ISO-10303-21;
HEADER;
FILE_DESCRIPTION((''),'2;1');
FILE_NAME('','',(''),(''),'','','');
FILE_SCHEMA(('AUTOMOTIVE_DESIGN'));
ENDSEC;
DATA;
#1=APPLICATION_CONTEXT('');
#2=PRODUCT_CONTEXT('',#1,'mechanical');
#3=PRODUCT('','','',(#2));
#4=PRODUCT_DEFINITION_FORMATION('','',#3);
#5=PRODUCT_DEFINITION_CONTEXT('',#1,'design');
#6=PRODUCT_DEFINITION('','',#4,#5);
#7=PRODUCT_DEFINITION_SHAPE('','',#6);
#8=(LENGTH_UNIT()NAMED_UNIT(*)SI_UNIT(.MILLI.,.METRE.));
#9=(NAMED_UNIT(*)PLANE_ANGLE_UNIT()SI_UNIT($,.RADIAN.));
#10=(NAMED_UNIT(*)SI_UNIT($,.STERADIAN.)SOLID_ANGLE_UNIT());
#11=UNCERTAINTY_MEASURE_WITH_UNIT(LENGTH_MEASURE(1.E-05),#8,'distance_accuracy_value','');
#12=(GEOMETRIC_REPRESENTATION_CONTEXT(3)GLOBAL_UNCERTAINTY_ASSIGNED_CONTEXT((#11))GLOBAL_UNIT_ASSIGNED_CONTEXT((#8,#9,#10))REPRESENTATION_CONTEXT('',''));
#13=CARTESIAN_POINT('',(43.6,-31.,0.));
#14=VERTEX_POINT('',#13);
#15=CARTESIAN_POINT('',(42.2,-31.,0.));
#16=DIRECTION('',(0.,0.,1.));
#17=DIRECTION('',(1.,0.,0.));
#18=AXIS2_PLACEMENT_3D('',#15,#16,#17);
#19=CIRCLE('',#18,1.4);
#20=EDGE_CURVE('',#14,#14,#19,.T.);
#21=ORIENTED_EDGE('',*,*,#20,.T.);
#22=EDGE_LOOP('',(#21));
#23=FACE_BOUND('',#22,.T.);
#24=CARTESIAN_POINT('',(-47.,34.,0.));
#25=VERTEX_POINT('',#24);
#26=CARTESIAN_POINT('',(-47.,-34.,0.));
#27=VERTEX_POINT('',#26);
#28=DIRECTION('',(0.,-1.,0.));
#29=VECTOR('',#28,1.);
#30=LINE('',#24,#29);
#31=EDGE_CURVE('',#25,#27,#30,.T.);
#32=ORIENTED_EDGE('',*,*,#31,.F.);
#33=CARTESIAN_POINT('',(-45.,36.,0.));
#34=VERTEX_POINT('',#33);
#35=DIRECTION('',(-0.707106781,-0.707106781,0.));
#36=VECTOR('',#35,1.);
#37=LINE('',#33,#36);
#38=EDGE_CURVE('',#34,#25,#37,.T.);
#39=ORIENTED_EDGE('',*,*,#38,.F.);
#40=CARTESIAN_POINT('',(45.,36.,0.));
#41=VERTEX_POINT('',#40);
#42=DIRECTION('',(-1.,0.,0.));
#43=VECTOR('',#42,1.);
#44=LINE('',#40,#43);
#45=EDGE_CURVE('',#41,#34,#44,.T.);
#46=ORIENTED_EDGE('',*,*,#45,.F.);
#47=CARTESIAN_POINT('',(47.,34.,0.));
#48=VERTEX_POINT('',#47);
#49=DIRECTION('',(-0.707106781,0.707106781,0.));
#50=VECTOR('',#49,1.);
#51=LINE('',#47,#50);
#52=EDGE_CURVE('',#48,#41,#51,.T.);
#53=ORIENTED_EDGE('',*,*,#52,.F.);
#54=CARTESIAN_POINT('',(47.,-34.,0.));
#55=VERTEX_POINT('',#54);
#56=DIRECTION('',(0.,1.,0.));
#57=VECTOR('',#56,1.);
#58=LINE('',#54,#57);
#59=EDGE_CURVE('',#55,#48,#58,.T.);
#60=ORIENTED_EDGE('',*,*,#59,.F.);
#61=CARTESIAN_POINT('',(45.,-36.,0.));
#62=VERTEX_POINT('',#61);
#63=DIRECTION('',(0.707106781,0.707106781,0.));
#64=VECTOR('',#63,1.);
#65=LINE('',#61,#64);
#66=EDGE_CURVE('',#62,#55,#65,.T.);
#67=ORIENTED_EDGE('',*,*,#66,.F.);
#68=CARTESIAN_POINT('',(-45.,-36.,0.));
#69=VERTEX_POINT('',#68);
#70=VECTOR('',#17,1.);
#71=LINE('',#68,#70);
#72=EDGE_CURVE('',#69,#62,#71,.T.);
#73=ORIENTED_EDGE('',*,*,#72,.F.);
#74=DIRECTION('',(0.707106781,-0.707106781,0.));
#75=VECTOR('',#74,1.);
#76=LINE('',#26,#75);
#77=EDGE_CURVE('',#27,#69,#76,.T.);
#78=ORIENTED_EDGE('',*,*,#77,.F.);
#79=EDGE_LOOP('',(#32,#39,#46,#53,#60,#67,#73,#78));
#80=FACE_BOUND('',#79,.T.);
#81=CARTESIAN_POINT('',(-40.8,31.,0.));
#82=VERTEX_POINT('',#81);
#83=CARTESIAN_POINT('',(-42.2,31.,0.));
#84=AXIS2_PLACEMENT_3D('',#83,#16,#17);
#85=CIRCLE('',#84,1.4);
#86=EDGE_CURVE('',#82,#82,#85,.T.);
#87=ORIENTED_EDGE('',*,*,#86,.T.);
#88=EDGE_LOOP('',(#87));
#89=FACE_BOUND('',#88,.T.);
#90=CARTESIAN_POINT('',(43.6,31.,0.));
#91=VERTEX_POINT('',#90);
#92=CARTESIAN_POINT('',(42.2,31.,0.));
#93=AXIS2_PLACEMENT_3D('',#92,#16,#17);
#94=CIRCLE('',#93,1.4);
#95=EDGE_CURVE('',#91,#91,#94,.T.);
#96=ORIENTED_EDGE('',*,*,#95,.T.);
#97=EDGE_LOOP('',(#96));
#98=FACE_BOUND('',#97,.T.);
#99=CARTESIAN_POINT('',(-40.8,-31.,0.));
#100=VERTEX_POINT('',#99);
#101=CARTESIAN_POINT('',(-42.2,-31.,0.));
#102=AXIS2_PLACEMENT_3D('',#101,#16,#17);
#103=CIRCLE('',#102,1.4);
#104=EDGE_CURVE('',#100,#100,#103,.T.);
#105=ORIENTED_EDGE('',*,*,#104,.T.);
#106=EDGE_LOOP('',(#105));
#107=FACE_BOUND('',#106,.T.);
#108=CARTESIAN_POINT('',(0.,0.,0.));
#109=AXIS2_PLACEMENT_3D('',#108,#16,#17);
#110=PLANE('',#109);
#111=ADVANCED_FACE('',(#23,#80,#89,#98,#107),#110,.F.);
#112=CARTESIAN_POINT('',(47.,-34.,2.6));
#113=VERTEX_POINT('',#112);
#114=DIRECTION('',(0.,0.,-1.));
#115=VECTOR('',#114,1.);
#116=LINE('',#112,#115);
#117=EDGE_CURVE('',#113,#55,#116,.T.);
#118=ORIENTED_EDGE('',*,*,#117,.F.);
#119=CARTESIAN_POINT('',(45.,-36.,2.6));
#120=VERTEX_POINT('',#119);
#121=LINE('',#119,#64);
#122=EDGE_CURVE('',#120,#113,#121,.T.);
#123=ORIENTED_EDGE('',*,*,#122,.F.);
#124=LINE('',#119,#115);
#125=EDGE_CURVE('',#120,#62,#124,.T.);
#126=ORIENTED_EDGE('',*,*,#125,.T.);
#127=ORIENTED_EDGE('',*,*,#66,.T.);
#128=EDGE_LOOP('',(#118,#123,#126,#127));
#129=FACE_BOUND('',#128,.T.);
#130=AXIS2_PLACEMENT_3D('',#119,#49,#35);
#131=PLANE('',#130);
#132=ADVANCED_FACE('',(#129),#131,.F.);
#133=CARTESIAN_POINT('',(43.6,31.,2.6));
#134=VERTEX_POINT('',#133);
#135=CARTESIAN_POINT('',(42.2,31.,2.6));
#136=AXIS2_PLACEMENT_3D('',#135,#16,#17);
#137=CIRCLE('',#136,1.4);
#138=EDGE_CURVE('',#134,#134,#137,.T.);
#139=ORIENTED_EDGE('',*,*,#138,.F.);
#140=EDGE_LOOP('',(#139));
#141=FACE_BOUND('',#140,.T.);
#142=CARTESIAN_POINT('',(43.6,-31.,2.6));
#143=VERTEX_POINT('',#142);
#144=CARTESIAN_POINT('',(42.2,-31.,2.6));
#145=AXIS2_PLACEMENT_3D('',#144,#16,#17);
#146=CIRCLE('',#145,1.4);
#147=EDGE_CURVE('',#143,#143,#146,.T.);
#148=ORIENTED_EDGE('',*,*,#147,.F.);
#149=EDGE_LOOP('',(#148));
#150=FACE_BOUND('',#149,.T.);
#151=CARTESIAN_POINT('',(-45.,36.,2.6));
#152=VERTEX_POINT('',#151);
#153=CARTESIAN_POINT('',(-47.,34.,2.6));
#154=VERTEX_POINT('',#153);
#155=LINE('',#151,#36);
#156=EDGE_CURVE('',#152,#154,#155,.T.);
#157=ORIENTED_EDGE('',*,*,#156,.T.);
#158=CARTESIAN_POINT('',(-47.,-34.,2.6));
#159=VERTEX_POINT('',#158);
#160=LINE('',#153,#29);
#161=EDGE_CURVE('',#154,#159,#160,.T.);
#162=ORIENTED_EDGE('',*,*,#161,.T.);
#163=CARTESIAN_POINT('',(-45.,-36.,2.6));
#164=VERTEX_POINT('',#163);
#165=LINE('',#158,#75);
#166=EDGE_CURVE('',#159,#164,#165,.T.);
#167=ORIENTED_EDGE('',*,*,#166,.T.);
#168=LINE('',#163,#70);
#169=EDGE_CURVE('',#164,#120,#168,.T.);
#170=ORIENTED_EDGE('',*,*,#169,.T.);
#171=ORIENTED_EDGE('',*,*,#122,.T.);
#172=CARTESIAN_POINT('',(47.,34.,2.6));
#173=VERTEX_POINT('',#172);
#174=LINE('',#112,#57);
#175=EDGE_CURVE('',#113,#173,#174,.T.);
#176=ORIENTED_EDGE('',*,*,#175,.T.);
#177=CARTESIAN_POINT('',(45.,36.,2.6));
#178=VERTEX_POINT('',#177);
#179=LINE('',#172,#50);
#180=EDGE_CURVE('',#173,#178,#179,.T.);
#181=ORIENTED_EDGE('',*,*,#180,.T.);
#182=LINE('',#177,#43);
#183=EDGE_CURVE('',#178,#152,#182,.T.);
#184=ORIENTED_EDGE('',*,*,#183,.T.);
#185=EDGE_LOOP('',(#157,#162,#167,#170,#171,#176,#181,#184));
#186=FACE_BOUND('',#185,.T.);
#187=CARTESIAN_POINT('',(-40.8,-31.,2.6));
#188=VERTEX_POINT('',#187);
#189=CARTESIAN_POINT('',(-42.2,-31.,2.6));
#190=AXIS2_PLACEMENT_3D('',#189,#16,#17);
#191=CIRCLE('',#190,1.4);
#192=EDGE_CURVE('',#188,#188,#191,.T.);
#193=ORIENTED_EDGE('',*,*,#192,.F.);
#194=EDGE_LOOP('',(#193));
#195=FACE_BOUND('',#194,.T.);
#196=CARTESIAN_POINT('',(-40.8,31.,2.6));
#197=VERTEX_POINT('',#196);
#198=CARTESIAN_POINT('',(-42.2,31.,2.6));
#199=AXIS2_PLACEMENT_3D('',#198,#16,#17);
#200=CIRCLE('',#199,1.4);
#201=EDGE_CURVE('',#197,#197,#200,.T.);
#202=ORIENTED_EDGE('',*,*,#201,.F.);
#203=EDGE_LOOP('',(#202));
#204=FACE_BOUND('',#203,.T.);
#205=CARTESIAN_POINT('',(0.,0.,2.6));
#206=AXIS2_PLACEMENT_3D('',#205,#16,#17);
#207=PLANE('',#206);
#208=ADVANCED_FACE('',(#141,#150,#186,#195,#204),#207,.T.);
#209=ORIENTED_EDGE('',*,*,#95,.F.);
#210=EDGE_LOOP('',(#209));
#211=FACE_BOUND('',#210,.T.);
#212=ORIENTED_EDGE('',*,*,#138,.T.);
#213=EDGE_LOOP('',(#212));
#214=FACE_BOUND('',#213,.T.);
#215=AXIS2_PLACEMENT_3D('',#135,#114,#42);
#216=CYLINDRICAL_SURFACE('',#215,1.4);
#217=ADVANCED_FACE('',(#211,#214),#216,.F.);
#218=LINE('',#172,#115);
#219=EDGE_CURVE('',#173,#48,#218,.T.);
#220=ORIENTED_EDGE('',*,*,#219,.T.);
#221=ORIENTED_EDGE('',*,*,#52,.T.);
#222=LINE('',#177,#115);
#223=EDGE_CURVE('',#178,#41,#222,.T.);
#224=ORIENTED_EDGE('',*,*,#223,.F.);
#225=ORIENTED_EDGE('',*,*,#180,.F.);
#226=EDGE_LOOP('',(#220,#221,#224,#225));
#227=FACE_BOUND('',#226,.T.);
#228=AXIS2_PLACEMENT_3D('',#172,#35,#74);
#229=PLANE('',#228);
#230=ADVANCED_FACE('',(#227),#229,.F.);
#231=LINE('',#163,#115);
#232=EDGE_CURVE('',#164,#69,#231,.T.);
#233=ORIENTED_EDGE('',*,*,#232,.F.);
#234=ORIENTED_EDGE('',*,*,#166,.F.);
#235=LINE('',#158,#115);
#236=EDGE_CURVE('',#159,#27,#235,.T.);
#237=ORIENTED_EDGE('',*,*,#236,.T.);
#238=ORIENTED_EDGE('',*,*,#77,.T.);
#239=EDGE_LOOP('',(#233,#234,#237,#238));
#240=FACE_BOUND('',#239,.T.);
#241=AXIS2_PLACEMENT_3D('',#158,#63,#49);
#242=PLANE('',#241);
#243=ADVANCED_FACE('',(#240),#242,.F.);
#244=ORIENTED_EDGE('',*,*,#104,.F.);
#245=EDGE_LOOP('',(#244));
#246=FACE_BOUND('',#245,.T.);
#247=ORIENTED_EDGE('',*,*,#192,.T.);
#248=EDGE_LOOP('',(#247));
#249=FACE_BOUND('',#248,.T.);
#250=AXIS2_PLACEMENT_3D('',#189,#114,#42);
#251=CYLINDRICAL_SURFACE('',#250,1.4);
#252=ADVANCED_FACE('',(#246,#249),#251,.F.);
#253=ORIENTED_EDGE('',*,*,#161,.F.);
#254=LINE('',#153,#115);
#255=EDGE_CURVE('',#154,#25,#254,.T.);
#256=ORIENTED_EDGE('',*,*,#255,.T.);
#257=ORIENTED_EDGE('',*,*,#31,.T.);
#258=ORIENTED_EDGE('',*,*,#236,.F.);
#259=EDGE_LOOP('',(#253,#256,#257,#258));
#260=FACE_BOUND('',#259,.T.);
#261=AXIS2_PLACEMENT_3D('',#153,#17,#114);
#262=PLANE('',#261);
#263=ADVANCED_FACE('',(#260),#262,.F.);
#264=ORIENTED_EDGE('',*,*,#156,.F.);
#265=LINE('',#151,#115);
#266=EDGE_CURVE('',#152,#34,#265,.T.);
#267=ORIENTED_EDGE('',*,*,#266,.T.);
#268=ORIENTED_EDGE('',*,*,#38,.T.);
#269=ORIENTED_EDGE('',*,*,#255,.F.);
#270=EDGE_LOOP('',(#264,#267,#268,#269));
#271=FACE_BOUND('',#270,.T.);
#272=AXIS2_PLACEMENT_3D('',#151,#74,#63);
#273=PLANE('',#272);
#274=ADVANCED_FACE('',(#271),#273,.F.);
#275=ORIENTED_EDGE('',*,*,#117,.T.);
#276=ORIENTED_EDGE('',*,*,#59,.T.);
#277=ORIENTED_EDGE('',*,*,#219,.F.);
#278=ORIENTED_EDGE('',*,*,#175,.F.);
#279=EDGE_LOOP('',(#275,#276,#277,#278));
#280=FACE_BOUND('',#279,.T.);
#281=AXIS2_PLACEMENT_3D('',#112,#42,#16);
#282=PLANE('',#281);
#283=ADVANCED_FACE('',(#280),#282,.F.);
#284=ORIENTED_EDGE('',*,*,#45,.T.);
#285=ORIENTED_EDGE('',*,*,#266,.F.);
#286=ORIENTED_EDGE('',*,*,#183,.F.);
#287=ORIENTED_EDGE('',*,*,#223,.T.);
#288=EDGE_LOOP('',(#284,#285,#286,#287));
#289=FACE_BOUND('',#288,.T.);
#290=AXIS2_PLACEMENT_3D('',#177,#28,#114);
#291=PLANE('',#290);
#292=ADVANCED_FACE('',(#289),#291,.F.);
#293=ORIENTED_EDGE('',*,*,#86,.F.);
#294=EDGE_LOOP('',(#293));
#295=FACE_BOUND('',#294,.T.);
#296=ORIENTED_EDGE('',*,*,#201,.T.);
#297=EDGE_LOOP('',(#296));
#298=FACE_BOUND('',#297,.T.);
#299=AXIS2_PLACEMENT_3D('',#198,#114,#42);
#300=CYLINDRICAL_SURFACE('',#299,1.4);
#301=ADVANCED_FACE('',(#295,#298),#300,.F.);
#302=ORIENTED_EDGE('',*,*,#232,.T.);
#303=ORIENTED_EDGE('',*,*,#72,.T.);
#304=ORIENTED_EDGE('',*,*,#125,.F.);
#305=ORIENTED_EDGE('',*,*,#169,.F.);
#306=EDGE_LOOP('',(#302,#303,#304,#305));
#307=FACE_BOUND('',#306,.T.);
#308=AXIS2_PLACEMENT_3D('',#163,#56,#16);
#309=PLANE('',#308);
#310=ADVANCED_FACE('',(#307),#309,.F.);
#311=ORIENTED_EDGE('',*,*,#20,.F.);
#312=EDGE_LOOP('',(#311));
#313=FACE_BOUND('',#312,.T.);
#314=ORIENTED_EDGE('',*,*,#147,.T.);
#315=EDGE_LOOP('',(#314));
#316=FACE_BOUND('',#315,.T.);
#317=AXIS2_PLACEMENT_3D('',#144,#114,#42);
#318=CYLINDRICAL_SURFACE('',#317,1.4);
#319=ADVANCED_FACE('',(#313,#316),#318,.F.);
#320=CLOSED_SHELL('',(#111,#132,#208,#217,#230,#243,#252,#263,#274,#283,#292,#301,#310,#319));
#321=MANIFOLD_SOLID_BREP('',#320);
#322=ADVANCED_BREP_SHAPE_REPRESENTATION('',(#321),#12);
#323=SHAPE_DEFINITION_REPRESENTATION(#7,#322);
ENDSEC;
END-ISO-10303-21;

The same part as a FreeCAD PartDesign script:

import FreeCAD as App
import Part
import Sketcher
from FreeCAD import Vector
Q = App.Units.Quantity


def add_polygon(sketch, points):
    """Adds a closed chain of lines whose ends are joined by coincident constraints."""
    first, n = sketch.GeometryCount, len(points)
    for a, b in zip(points, points[1:] + points[:1]):
        sketch.addGeometry(Part.LineSegment(App.Vector(*a, 0), App.Vector(*b, 0)), False)
    for i in range(n):
        sketch.addConstraint(Sketcher.Constraint("Coincident", first + i, 2, first + (i + 1) % n, 1))

doc = App.newDocument("Part")
body = doc.addObject("PartDesign::Body", "Body")

# Sketch on XY plane
sketch1 = body.newObject("Sketcher::SketchObject", "Sketch")
sketch1.AttachmentSupport = (doc.getObject("XY_Plane"), [""])
sketch1.MapMode = "FlatFace"
add_polygon(sketch1, [(-45, -36), (45, -36), (47, -34), (47, 34), (45, 36), (-45, 36), (-47, 34), (-47, -34)])  # lines 0-7
sketch1.addGeometry(Part.Circle(Vector(-42.2, -31, 0), Vector(0, 0, 1), 1.4), False)  # 8
sketch1.addGeometry(Part.Circle(Vector(42.2, -31, 0), Vector(0, 0, 1), 1.4), False)  # 9
sketch1.addGeometry(Part.Circle(Vector(-42.2, 31, 0), Vector(0, 0, 1), 1.4), False)  # 10
sketch1.addGeometry(Part.Circle(Vector(42.2, 31, 0), Vector(0, 0, 1), 1.4), False)  # 11
sketch1.addConstraint([
    Sketcher.Constraint("Horizontal", 0),
    Sketcher.Constraint("Vertical", 2),
    Sketcher.Constraint("Horizontal", 4),
    Sketcher.Constraint("Vertical", 6),
    Sketcher.Constraint("Equal", 8, 9),
    Sketcher.Constraint("Equal", 9, 10),
    Sketcher.Constraint("Equal", 10, 11),
    Sketcher.Constraint("Symmetric", 9, 3, 10, 3, -1, 1),
    Sketcher.Constraint("Symmetric", 8, 3, 11, 3, -1, 1),
    Sketcher.Constraint("Symmetric", 0, 2, 4, 2, -1, 1),
    Sketcher.Constraint("Symmetric", 1, 2, 5, 2, -1, 1),
    Sketcher.Constraint("Symmetric", 8, 3, 9, 3, -2),
    Sketcher.Constraint("Perpendicular", 1, 3),
    Sketcher.Constraint("Perpendicular", 5, 7),
    Sketcher.Constraint("Horizontal", 2, 2, 5, 2),
    Sketcher.Constraint("Horizontal", 1, 2, 6, 2),
    Sketcher.Constraint("Vertical", 0, 2, 3, 2),
    Sketcher.Constraint("Diameter", 8, Q("2.8 mm")),
    Sketcher.Constraint("DistanceX", 0, 1, 0, 2, Q("90 mm")),
    Sketcher.Constraint("DistanceY", 2, 1, 2, 2, Q("68 mm")),
    Sketcher.Constraint("DistanceY", 8, 3, -1, 1, Q("31 mm")),
    Sketcher.Constraint("DistanceY", 0, 2, -1, 1, Q("36 mm")),
    Sketcher.Constraint("DistanceX", 8, 3, -1, 1, Q("42.2 mm")),
])
pad1 = body.newObject("PartDesign::Pad", "Pad")
pad1.Profile = sketch1
pad1.Length = 2.6

doc.recompute()
